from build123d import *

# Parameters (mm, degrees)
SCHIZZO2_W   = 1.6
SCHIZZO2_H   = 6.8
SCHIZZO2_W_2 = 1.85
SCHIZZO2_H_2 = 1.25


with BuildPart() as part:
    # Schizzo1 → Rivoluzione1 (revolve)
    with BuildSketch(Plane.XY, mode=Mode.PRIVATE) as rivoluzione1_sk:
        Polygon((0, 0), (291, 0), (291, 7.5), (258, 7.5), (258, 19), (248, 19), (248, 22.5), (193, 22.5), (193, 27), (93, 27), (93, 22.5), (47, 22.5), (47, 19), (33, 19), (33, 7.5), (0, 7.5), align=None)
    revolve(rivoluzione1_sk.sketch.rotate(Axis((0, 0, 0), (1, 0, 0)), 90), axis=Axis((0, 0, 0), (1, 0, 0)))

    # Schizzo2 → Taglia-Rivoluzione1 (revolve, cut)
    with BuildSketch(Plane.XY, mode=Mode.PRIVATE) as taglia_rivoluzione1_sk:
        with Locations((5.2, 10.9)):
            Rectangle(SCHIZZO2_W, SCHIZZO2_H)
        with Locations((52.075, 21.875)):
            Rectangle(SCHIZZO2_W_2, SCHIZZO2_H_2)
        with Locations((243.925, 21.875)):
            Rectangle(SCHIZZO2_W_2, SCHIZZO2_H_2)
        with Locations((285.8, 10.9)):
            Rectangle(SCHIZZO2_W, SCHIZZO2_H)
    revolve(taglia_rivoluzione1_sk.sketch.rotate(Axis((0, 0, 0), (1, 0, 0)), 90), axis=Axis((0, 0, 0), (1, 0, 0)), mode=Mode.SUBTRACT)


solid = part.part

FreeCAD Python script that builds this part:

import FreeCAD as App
import Part
import Sketcher
Q = App.Units.Quantity


def add_polygon(sketch, points):
    """Adds a closed chain of lines whose ends are joined by coincident constraints."""
    first, n = sketch.GeometryCount, len(points)
    for a, b in zip(points, points[1:] + points[:1]):
        sketch.addGeometry(Part.LineSegment(App.Vector(*a, 0), App.Vector(*b, 0)), False)
    for i in range(n):
        sketch.addConstraint(Sketcher.Constraint("Coincident", first + i, 2, first + (i + 1) % n, 1))

doc = App.newDocument("Part")
params = doc.addObject("Spreadsheet::Sheet", "Params")
for row, (alias, value) in enumerate([
    ("sketch1_width", "291 mm"),
    ("sketch1_width2", "33 mm"),
    ("sketch1_width3", "10 mm"),
    ("sketch1_width4", "55 mm"),
    ("sketch1_width5", "100 mm"),
    ("revolution_angle", "360 deg"),
    ("sketch2_width", "1.6 mm"),
    ("sketch2_height", "6.8 mm"),
    ("sketch2_width2", "1.85 mm"),
    ("sketch2_height2", "1.25 mm"),
    ("groove_angle", "360 deg"),
], start=1):
    params.set(f"A{row}", alias)
    params.set(f"B{row}", "=" + value)
    params.setAlias(f"B{row}", alias)

body = doc.addObject("PartDesign::Body", "Body")

sketch1 = doc.addObject("Sketcher::SketchObject", "Sketch")
body.addObject(sketch1)
sketch1.AttachmentSupport = (doc.XY_Plane, [""])
sketch1.MapMode = "FlatFace"
add_polygon(sketch1, [(0, 0), (291, 0), (291, 7.5), (258, 7.5), (258, 19), (248, 19), (248, 22.5), (193, 22.5), (193, 27), (93, 27), (93, 22.5), (47, 22.5), (47, 19), (33, 19), (33, 7.5), (0, 7.5)])
sketch1.addConstraint([
    Sketcher.Constraint("Horizontal", 0),
    Sketcher.Constraint("Vertical", 1),
    Sketcher.Constraint("Horizontal", 2),
    Sketcher.Constraint("Vertical", 3),
    Sketcher.Constraint("Horizontal", 4),
    Sketcher.Constraint("Vertical", 5),
    Sketcher.Constraint("Horizontal", 6),
    Sketcher.Constraint("Vertical", 7),
    Sketcher.Constraint("Horizontal", 8),
    Sketcher.Constraint("Vertical", 9),
    Sketcher.Constraint("Horizontal", 10),
    Sketcher.Constraint("Vertical", 11),
    Sketcher.Constraint("Horizontal", 12),
    Sketcher.Constraint("Vertical", 13),
    Sketcher.Constraint("Horizontal", 14),
    Sketcher.Constraint("Vertical", 15),
    Sketcher.Constraint("Coincident", 15, 2, -1, 1),
    Sketcher.Constraint("Horizontal", 6, 2, 9, 2),
    Sketcher.Constraint("Horizontal", 4, 2, 11, 2),
    Sketcher.Constraint("Horizontal", 2, 2, 13, 2),
    Sketcher.Constraint("Equal", 2, 14),
    Sketcher.Constraint("DistanceX", 0, 1, 0, 2, Q("291 mm")),
    Sketcher.Constraint("DistanceX", 2, 2, 2, 1, Q("33 mm")),
    Sketcher.Constraint("DistanceX", 4, 2, 4, 1, Q("10 mm")),
    Sketcher.Constraint("DistanceX", 6, 2, 6, 1, Q("55 mm")),
    Sketcher.Constraint("DistanceX", 8, 2, 8, 1, Q("100 mm")),
    Sketcher.Constraint("DistanceX", 10, 2, 10, 1, Q("46 mm")),
    Sketcher.Constraint("DistanceY", 1, 1, 1, 2, Q("7.5 mm")),
    Sketcher.Constraint("DistanceY", 3, 1, 3, 2, Q("11.5 mm")),
    Sketcher.Constraint("DistanceY", 5, 1, 5, 2, Q("3.5 mm")),
    Sketcher.Constraint("DistanceY", 7, 1, 7, 2, Q("4.5 mm")),
])
sketch1.setExpression("Constraints[37]", "Params.sketch1_width")
sketch1.setExpression("Constraints[38]", "Params.sketch1_width2")
sketch1.setExpression("Constraints[39]", "Params.sketch1_width3")
sketch1.setExpression("Constraints[40]", "Params.sketch1_width4")
sketch1.setExpression("Constraints[41]", "Params.sketch1_width5")
revolution = doc.addObject("PartDesign::Revolution", "Revolution")
body.addObject(revolution)
revolution.Profile = sketch1
revolution.ReferenceAxis = (sketch1, ["H_Axis"])
revolution.setExpression("Angle", "Params.revolution_angle")

sketch2 = doc.addObject("Sketcher::SketchObject", "Sketch001")
body.addObject(sketch2)
sketch2.AttachmentSupport = (doc.XY_Plane, [""])
sketch2.MapMode = "FlatFace"
add_polygon(sketch2, [(4.4, 14.3), (4.4, 7.5), (6, 7.5), (6, 14.3)])
add_polygon(sketch2, [(51.15, 22.5), (51.15, 21.25), (53, 21.25), (53, 22.5)])
add_polygon(sketch2, [(243, 22.5), (243, 21.25), (244.85, 21.25), (244.85, 22.5)])
add_polygon(sketch2, [(285, 14.3), (285, 7.5), (286.6, 7.5), (286.6, 14.3)])
sketch2.addConstraint([
    Sketcher.Constraint("Vertical", 0),
    Sketcher.Constraint("Horizontal", 1),
    Sketcher.Constraint("Vertical", 2),
    Sketcher.Constraint("Horizontal", 3),
    Sketcher.Constraint("Vertical", 4),
    Sketcher.Constraint("Horizontal", 5),
    Sketcher.Constraint("Vertical", 6),
    Sketcher.Constraint("Horizontal", 7),
    Sketcher.Constraint("Vertical", 8),
    Sketcher.Constraint("Horizontal", 9),
    Sketcher.Constraint("Vertical", 10),
    Sketcher.Constraint("Horizontal", 11),
    Sketcher.Constraint("Vertical", 12),
    Sketcher.Constraint("Horizontal", 13),
    Sketcher.Constraint("Vertical", 14),
    Sketcher.Constraint("Horizontal", 15),
    Sketcher.Constraint("Horizontal", 5, 2, 8, 2),
    Sketcher.Constraint("Horizontal", 7, 2, 10, 2),
    Sketcher.Constraint("Horizontal", 1, 2, 12, 2),
    Sketcher.Constraint("Horizontal", 3, 2, 14, 2),
    Sketcher.Constraint("Equal", 7, 9),
    Sketcher.Constraint("Equal", 3, 13),
    Sketcher.Constraint("DistanceX", 1, 1, 1, 2, Q("1.6 mm")),
    Sketcher.Constraint("DistanceY", 0, 2, 0, 1, Q("6.8 mm")),
    Sketcher.Constraint("DistanceX", -1, 1, 1, 2, Q("6 mm")),
    Sketcher.Constraint("DistanceX", -1, 1, 5, 2, Q("53 mm")),
    Sketcher.Constraint("DistanceX", -1, 1, 8, 2, Q("243 mm")),
    Sketcher.Constraint("DistanceX", -1, 1, 12, 2, Q("285 mm")),
    Sketcher.Constraint("DistanceY", 1, 2, 6, 2, Q("15 mm")),
    Sketcher.Constraint("DistanceX", 5, 1, 5, 2, Q("1.85 mm")),
    Sketcher.Constraint("DistanceY", 4, 2, 4, 1, Q("1.25 mm")),
    Sketcher.Constraint("DistanceY", -1, 1, 0, 2, Q("7.5 mm")),
])
sketch2.setExpression("Constraints[38]", "Params.sketch2_width")
sketch2.setExpression("Constraints[39]", "Params.sketch2_height")
sketch2.setExpression("Constraints[45]", "Params.sketch2_width2")
sketch2.setExpression("Constraints[46]", "Params.sketch2_height2")
groove = doc.addObject("PartDesign::Groove", "Groove")
body.addObject(groove)
groove.Profile = sketch2
groove.ReferenceAxis = (sketch2, ["H_Axis"])
groove.setExpression("Angle", "Params.groove_angle")

doc.recompute()
